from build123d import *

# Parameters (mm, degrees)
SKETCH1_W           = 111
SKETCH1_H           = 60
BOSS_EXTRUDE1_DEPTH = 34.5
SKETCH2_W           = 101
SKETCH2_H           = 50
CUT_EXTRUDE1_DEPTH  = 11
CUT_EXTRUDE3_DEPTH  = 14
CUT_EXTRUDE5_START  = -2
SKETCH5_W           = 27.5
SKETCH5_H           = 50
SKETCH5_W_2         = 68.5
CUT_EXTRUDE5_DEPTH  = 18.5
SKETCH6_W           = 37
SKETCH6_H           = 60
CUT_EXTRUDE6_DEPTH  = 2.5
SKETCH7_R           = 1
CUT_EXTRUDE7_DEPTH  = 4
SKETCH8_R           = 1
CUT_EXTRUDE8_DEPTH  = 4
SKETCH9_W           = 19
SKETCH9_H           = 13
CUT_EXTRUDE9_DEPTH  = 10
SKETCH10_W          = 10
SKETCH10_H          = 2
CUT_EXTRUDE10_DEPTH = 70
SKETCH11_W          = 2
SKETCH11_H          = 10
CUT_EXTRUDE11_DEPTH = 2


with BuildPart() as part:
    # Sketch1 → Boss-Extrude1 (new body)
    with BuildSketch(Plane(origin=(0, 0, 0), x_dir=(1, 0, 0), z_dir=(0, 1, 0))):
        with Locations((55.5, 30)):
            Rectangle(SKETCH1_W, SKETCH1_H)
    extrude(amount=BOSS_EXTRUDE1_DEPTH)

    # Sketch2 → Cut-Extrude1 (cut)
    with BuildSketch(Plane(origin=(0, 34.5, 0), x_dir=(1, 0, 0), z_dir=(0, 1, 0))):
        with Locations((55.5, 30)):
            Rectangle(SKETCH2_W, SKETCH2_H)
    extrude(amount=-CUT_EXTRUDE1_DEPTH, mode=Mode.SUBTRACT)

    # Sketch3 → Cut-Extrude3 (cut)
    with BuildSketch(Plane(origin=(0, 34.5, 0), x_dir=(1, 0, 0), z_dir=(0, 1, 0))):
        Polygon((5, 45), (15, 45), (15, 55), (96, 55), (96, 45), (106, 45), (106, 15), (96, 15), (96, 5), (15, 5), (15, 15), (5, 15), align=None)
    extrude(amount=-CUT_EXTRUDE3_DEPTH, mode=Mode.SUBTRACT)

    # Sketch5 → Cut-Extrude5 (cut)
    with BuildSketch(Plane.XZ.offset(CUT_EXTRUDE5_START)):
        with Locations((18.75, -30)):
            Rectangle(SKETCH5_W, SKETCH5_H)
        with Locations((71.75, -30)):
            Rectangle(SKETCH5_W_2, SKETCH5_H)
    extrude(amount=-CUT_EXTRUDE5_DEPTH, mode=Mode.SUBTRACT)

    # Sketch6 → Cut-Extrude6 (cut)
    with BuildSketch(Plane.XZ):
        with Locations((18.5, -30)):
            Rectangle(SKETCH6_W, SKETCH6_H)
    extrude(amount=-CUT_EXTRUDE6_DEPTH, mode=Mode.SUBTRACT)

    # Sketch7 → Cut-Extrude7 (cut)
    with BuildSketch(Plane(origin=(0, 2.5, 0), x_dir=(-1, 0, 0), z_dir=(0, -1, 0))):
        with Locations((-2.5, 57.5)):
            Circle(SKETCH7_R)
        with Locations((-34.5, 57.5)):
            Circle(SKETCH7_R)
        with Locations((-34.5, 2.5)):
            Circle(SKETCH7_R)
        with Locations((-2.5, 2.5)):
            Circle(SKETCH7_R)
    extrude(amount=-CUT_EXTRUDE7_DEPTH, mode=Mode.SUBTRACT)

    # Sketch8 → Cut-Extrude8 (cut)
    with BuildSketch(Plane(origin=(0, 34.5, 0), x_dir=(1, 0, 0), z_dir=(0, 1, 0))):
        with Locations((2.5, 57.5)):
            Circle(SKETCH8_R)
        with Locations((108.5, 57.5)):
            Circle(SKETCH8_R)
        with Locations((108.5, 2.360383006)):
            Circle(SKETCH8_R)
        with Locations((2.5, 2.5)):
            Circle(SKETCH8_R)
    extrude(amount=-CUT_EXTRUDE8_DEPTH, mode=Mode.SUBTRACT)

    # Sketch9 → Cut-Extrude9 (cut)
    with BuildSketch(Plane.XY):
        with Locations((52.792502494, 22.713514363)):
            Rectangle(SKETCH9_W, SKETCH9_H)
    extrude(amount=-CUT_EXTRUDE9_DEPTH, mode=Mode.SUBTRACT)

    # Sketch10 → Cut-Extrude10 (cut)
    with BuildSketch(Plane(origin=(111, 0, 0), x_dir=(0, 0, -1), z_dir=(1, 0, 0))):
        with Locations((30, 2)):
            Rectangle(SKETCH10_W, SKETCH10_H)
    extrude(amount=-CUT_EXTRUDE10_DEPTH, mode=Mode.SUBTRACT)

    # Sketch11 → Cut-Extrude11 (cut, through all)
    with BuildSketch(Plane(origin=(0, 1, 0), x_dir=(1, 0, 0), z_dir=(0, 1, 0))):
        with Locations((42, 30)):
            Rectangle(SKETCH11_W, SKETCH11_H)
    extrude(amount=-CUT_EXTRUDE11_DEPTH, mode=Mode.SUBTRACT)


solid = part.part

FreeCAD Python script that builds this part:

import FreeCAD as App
import Part
import Sketcher
from FreeCAD import Vector

doc = App.newDocument("Part")
body = doc.addObject("PartDesign::Body", "Body")

sketch1 = body.newObject("Sketcher::SketchObject", "Sketch")
sketch1.AttachmentSupport = (doc.getObject("XZ_Plane"), [""])
sketch1.MapMode = "FlatFace"
sketch1.addGeometry([
    Part.LineSegment(Vector(0, -60, 0), Vector(0, 0, 0)),
    Part.LineSegment(Vector(0, 0, 0), Vector(111, 0, 0)),
    Part.LineSegment(Vector(111, 0, 0), Vector(111, -60, 0)),
    Part.LineSegment(Vector(111, -60, 0), Vector(0, -60, 0)),
], False)
sketch1.addConstraint([
    Sketcher.Constraint("Coincident", 0, 2, 1, 1),
    Sketcher.Constraint("Coincident", 1, 2, 2, 1),
    Sketcher.Constraint("Coincident", 2, 2, 3, 1),
    Sketcher.Constraint("Coincident", 3, 2, 0, 1),
    Sketcher.Constraint("Vertical", 0),
    Sketcher.Constraint("Horizontal", 1),
    Sketcher.Constraint("Vertical", 2),
    Sketcher.Constraint("Horizontal", 3),
    Sketcher.Constraint("Coincident", 0, 2, -1, 1),
    Sketcher.Constraint("DistanceX", 1, 1, 1, 2, 111.0),
    Sketcher.Constraint("DistanceY", 0, 1, 0, 2, 60.0),
])
pad1 = body.newObject("PartDesign::Pad", "Pad")
pad1.Profile = sketch1
pad1.Length = 34.5
pad1.Reversed = True

sketch2 = body.newObject("Sketcher::SketchObject", "Sketch001")
sketch2.AttachmentSupport = (doc.getObject("XZ_Plane"), [""])
sketch2.MapMode = "FlatFace"
sketch2.AttachmentOffset = App.Placement(Vector(0, 0, -34.5), App.Rotation())
sketch2.addGeometry([
    Part.LineSegment(Vector(5, -55, 0), Vector(5, -5, 0)),
    Part.LineSegment(Vector(5, -5, 0), Vector(106, -5, 0)),
    Part.LineSegment(Vector(106, -5, 0), Vector(106, -55, 0)),
    Part.LineSegment(Vector(106, -55, 0), Vector(5, -55, 0)),
], False)
sketch2.addConstraint([
    Sketcher.Constraint("Coincident", 0, 2, 1, 1),
    Sketcher.Constraint("Coincident", 1, 2, 2, 1),
    Sketcher.Constraint("Coincident", 2, 2, 3, 1),
    Sketcher.Constraint("Coincident", 3, 2, 0, 1),
    Sketcher.Constraint("Vertical", 0),
    Sketcher.Constraint("Horizontal", 1),
    Sketcher.Constraint("Vertical", 2),
    Sketcher.Constraint("Horizontal", 3),
    Sketcher.Constraint("DistanceX", 1, 1, 1, 2, 101.0),
    Sketcher.Constraint("DistanceY", 0, 1, 0, 2, 50.0),
    Sketcher.Constraint("DistanceX", -1, 1, 0, 2, 5.0),
    Sketcher.Constraint("DistanceY", 0, 2, -1, 1, 5.0),
])
pocket1 = body.newObject("PartDesign::Pocket", "Pocket")
pocket1.Profile = sketch2
pocket1.Length = 11
pocket1.Reversed = True

sketch3 = body.newObject("Sketcher::SketchObject", "Sketch002")
sketch3.AttachmentSupport = (doc.getObject("XZ_Plane"), [""])
sketch3.MapMode = "FlatFace"
sketch3.AttachmentOffset = App.Placement(Vector(0, 0, -34.5), App.Rotation())
sketch3.addGeometry([
    Part.LineSegment(Vector(15, -45, 0), Vector(5, -45, 0)),
    Part.LineSegment(Vector(5, -45, 0), Vector(5, -15, 0)),
    Part.LineSegment(Vector(5, -15, 0), Vector(15, -15, 0)),
    Part.LineSegment(Vector(15, -15, 0), Vector(15, -5, 0)),
    Part.LineSegment(Vector(15, -5, 0), Vector(96, -5, 0)),
    Part.LineSegment(Vector(96, -5, 0), Vector(96, -15, 0)),
    Part.LineSegment(Vector(96, -15, 0), Vector(106, -15, 0)),
    Part.LineSegment(Vector(106, -15, 0), Vector(106, -45, 0)),
    Part.LineSegment(Vector(106, -45, 0), Vector(96, -45, 0)),
    Part.LineSegment(Vector(96, -45, 0), Vector(96, -55, 0)),
    Part.LineSegment(Vector(96, -55, 0), Vector(15, -55, 0)),
    Part.LineSegment(Vector(15, -55, 0), Vector(15, -45, 0)),
], False)
sketch3.addConstraint([
    Sketcher.Constraint("Coincident", 0, 2, 1, 1),
    Sketcher.Constraint("Coincident", 1, 2, 2, 1),
    Sketcher.Constraint("Coincident", 2, 2, 3, 1),
    Sketcher.Constraint("Coincident", 3, 2, 4, 1),
    Sketcher.Constraint("Coincident", 4, 2, 5, 1),
    Sketcher.Constraint("Coincident", 5, 2, 6, 1),
    Sketcher.Constraint("Coincident", 6, 2, 7, 1),
    Sketcher.Constraint("Coincident", 7, 2, 8, 1),
    Sketcher.Constraint("Coincident", 8, 2, 9, 1),
    Sketcher.Constraint("Coincident", 9, 2, 10, 1),
    Sketcher.Constraint("Coincident", 10, 2, 11, 1),
    Sketcher.Constraint("Coincident", 11, 2, 0, 1),
    Sketcher.Constraint("Horizontal", 0),
    Sketcher.Constraint("Vertical", 1),
    Sketcher.Constraint("Horizontal", 2),
    Sketcher.Constraint("Vertical", 3),
    Sketcher.Constraint("Horizontal", 4),
    Sketcher.Constraint("Vertical", 5),
    Sketcher.Constraint("Horizontal", 6),
    Sketcher.Constraint("Vertical", 7),
    Sketcher.Constraint("Horizontal", 8),
    Sketcher.Constraint("Vertical", 9),
    Sketcher.Constraint("Horizontal", 10),
    Sketcher.Constraint("Vertical", 11),
    Sketcher.Constraint("Horizontal", 2, 2, 5, 2),
    Sketcher.Constraint("Horizontal", 0, 2, 7, 2),
    Sketcher.Constraint("Vertical", 5, 2, 8, 2),
    Sketcher.Constraint("Vertical", 3, 2, 10, 2),
    Sketcher.Constraint("Equal", 2, 6),
    Sketcher.Constraint("Equal", 8, 3),
    Sketcher.Constraint("Equal", 5, 9),
    Sketcher.Constraint("DistanceX", 0, 2, 0, 1, 10.0),
    Sketcher.Constraint("DistanceX", 4, 1, 4, 2, 81.0),
    Sketcher.Constraint("DistanceY", 1, 1, 1, 2, 30.0),
    Sketcher.Constraint("DistanceX", -1, 1, 0, 2, 5.0),
    Sketcher.Constraint("DistanceY", 0, 2, -1, 1, 45.0),
])
pocket2 = body.newObject("PartDesign::Pocket", "Pocket001")
pocket2.Profile = sketch3
pocket2.Length = 14
pocket2.Reversed = True

sketch4 = body.newObject("Sketcher::SketchObject", "Sketch003")
sketch4.AttachmentSupport = (doc.getObject("XZ_Plane"), [""])
sketch4.MapMode = "FlatFace"
sketch4.AttachmentOffset = App.Placement(Vector(0, 0, -2), App.Rotation())
sketch4.addGeometry([
    Part.LineSegment(Vector(5, -5, 0), Vector(5, -55, 0)),
    Part.LineSegment(Vector(5, -55, 0), Vector(32, -55, 0)),
    Part.LineSegment(Vector(32, -55, 0), Vector(32, -5, 0)),
    Part.LineSegment(Vector(32, -5, 0), Vector(5, -5, 0)),
    Part.LineSegment(Vector(38, -5, 0), Vector(38, -55, 0)),
    Part.LineSegment(Vector(38, -55, 0), Vector(106, -55, 0)),
    Part.LineSegment(Vector(106, -55, 0), Vector(106, -5, 0)),
    Part.LineSegment(Vector(106, -5, 0), Vector(38, -5, 0)),
], False)
sketch4.addConstraint([
    Sketcher.Constraint("Coincident", 0, 2, 1, 1),
    Sketcher.Constraint("Coincident", 1, 2, 2, 1),
    Sketcher.Constraint("Coincident", 2, 2, 3, 1),
    Sketcher.Constraint("Coincident", 3, 2, 0, 1),
    Sketcher.Constraint("Coincident", 4, 2, 5, 1),
    Sketcher.Constraint("Coincident", 5, 2, 6, 1),
    Sketcher.Constraint("Coincident", 6, 2, 7, 1),
    Sketcher.Constraint("Coincident", 7, 2, 4, 1),
    Sketcher.Constraint("Vertical", 0),
    Sketcher.Constraint("Horizontal", 1),
    Sketcher.Constraint("Vertical", 2),
    Sketcher.Constraint("Horizontal", 3),
    Sketcher.Constraint("Vertical", 4),
    Sketcher.Constraint("Horizontal", 5),
    Sketcher.Constraint("Vertical", 6),
    Sketcher.Constraint("Horizontal", 7),
    Sketcher.Constraint("Horizontal", 1, 2, 4, 2),
    Sketcher.Constraint("Horizontal", 3, 2, 6, 2),
    Sketcher.Constraint("DistanceY", 0, 2, 0, 1, 50.0),
    Sketcher.Constraint("DistanceX", 1, 1, 1, 2, 27.5),
    Sketcher.Constraint("DistanceX", 5, 1, 5, 2, 68.5),
    Sketcher.Constraint("DistanceX", -1, 1, 0, 2, 5.0),
    Sketcher.Constraint("DistanceY", 0, 2, -1, 1, 55.0),
    Sketcher.Constraint("DistanceX", -1, 1, 5, 2, 106.0),
])
pocket3 = body.newObject("PartDesign::Pocket", "Pocket002")
pocket3.Profile = sketch4
pocket3.Length = 18.5

sketch5 = body.newObject("Sketcher::SketchObject", "Sketch004")
sketch5.AttachmentSupport = (doc.getObject("XZ_Plane"), [""])
sketch5.MapMode = "FlatFace"
sketch5.addGeometry([
    Part.LineSegment(Vector(0, 0, 0), Vector(0, -60, 0)),
    Part.LineSegment(Vector(0, -60, 0), Vector(37, -60, 0)),
    Part.LineSegment(Vector(37, -60, 0), Vector(37, 0, 0)),
    Part.LineSegment(Vector(37, 0, 0), Vector(0, 0, 0)),
], False)
sketch5.addConstraint([
    Sketcher.Constraint("Coincident", 0, 2, 1, 1),
    Sketcher.Constraint("Coincident", 1, 2, 2, 1),
    Sketcher.Constraint("Coincident", 2, 2, 3, 1),
    Sketcher.Constraint("Coincident", 3, 2, 0, 1),
    Sketcher.Constraint("Vertical", 0),
    Sketcher.Constraint("Horizontal", 1),
    Sketcher.Constraint("Vertical", 2),
    Sketcher.Constraint("Horizontal", 3),
    Sketcher.Constraint("Coincident", 3, 2, -1, 1),
    Sketcher.Constraint("DistanceX", 1, 1, 1, 2, 37.0),
    Sketcher.Constraint("DistanceY", 0, 2, 0, 1, 60.0),
])
pocket4 = body.newObject("PartDesign::Pocket", "Pocket003")
pocket4.Profile = sketch5
pocket4.Length = 2.5

sketch6 = body.newObject("Sketcher::SketchObject", "Sketch005")
sketch6.AttachmentSupport = (doc.getObject("XZ_Plane"), [""])
sketch6.MapMode = "FlatFace"
sketch6.AttachmentOffset = App.Placement(Vector(0, 0, -2.5), App.Rotation())
sketch6.addGeometry([
    Part.Circle(Vector(2.5, -57.5, 0), Vector(0, 0, 1), 1),
    Part.Circle(Vector(34.5, -57.5, 0), Vector(0, 0, 1), 1),
    Part.Circle(Vector(34.5, -2.5, 0), Vector(0, 0, 1), 1),
    Part.Circle(Vector(2.5, -2.5, 0), Vector(0, 0, 1), 1),
], False)
sketch6.addConstraint([
    Sketcher.Constraint("Equal", 0, 1),
    Sketcher.Constraint("Equal", 1, 2),
    Sketcher.Constraint("Equal", 2, 3),
    Sketcher.Constraint("Horizontal", 0, 3, 1, 3),
    Sketcher.Constraint("Horizontal", 2, 3, 3, 3),
    Sketcher.Constraint("Vertical", 1, 3, 2, 3),
    Sketcher.Constraint("Vertical", 0, 3, 3, 3),
    Sketcher.Constraint("Diameter", 0, 2.0),
    Sketcher.Constraint("DistanceX", 0, 3, 1, 3, 32.0),
    Sketcher.Constraint("DistanceY", 1, 3, 2, 3, 55.0),
    Sketcher.Constraint("DistanceX", -1, 1, 0, 3, 2.5),
    Sketcher.Constraint("DistanceY", 0, 3, -1, 1, 57.5),
])
pocket5 = body.newObject("PartDesign::Pocket", "Pocket004")
pocket5.Profile = sketch6
pocket5.Length = 4

sketch7 = body.newObject("Sketcher::SketchObject", "Sketch006")
sketch7.AttachmentSupport = (doc.getObject("XZ_Plane"), [""])
sketch7.MapMode = "FlatFace"
sketch7.AttachmentOffset = App.Placement(Vector(0, 0, -34.5), App.Rotation())
sketch7.addGeometry([
    Part.Circle(Vector(2.5, -57.5, 0), Vector(0, 0, 1), 1),
    Part.Circle(Vector(108.5, -57.5, 0), Vector(0, 0, 1), 1),
    Part.Circle(Vector(108.5, -2.4, 0), Vector(0, 0, 1), 1),
    Part.Circle(Vector(2.5, -2.5, 0), Vector(0, 0, 1), 1),
], False)
sketch7.addConstraint([
    Sketcher.Constraint("Equal", 0, 1),
    Sketcher.Constraint("Equal", 1, 2),
    Sketcher.Constraint("Equal", 2, 3),
    Sketcher.Constraint("Horizontal", 0, 3, 1, 3),
    Sketcher.Constraint("Vertical", 1, 3, 2, 3),
    Sketcher.Constraint("Vertical", 0, 3, 3, 3),
    Sketcher.Constraint("Diameter", 0, 2.0),
    Sketcher.Constraint("DistanceX", 0, 3, 1, 3, 106.0),
    Sketcher.Constraint("DistanceY", 0, 3, 3, 3, 55.0),
    Sketcher.Constraint("DistanceX", -1, 1, 0, 3, 2.5),
    Sketcher.Constraint("DistanceY", 0, 3, -1, 1, 57.5),
    Sketcher.Constraint("DistanceY", 2, 3, -1, 1, 2.360383),
])
pocket6 = body.newObject("PartDesign::Pocket", "Pocket005")
pocket6.Profile = sketch7
pocket6.Length = 4
pocket6.Reversed = True

sketch8 = body.newObject("Sketcher::SketchObject", "Sketch007")
sketch8.AttachmentSupport = (doc.getObject("XY_Plane"), [""])
sketch8.MapMode = "FlatFace"
sketch8.addGeometry([
    Part.LineSegment(Vector(43, 29, 0), Vector(43, 16, 0)),
    Part.LineSegment(Vector(43, 16, 0), Vector(62, 16, 0)),
    Part.LineSegment(Vector(62, 16, 0), Vector(62, 29, 0)),
    Part.LineSegment(Vector(62, 29, 0), Vector(43, 29, 0)),
], False)
sketch8.addConstraint([
    Sketcher.Constraint("Coincident", 0, 2, 1, 1),
    Sketcher.Constraint("Coincident", 1, 2, 2, 1),
    Sketcher.Constraint("Coincident", 2, 2, 3, 1),
    Sketcher.Constraint("Coincident", 3, 2, 0, 1),
    Sketcher.Constraint("Vertical", 0),
    Sketcher.Constraint("Horizontal", 1),
    Sketcher.Constraint("Vertical", 2),
    Sketcher.Constraint("Horizontal", 3),
    Sketcher.Constraint("DistanceX", 1, 1, 1, 2, 19.0),
    Sketcher.Constraint("DistanceY", 0, 2, 0, 1, 13.0),
    Sketcher.Constraint("DistanceX", -1, 1, 0, 2, 43.292502),
    Sketcher.Constraint("DistanceY", -1, 1, 0, 2, 16.213514),
])
pocket7 = body.newObject("PartDesign::Pocket", "Pocket006")
pocket7.Profile = sketch8
pocket7.Length = 10

sketch9 = body.newObject("Sketcher::SketchObject", "Sketch008")
sketch9.AttachmentSupport = (doc.getObject("YZ_Plane"), [""])
sketch9.MapMode = "FlatFace"
sketch9.AttachmentOffset = App.Placement(Vector(0, 0, 111), App.Rotation())
sketch9.addGeometry([
    Part.LineSegment(Vector(3, -25, 0), Vector(1, -25, 0)),
    Part.LineSegment(Vector(1, -25, 0), Vector(1, -35, 0)),
    Part.LineSegment(Vector(1, -35, 0), Vector(3, -35, 0)),
    Part.LineSegment(Vector(3, -35, 0), Vector(3, -25, 0)),
], False)
sketch9.addConstraint([
    Sketcher.Constraint("Coincident", 0, 2, 1, 1),
    Sketcher.Constraint("Coincident", 1, 2, 2, 1),
    Sketcher.Constraint("Coincident", 2, 2, 3, 1),
    Sketcher.Constraint("Coincident", 3, 2, 0, 1),
    Sketcher.Constraint("Horizontal", 0),
    Sketcher.Constraint("Vertical", 1),
    Sketcher.Constraint("Horizontal", 2),
    Sketcher.Constraint("Vertical", 3),
    Sketcher.Constraint("DistanceX", 0, 2, 0, 1, 2.0),
    Sketcher.Constraint("DistanceY", 1, 2, 1, 1, 10.0),
    Sketcher.Constraint("DistanceX", -1, 1, 0, 2, 1.0),
    Sketcher.Constraint("DistanceY", 0, 2, -1, 1, 25.0),
])
pocket8 = body.newObject("PartDesign::Pocket", "Pocket007")
pocket8.Profile = sketch9
pocket8.Length = 70

sketch10 = body.newObject("Sketcher::SketchObject", "Sketch009")
sketch10.AttachmentSupport = (doc.getObject("XZ_Plane"), [""])
sketch10.MapMode = "FlatFace"
sketch10.AttachmentOffset = App.Placement(Vector(0, 0, -1), App.Rotation())
sketch10.addGeometry([
    Part.LineSegment(Vector(41, -35, 0), Vector(41, -25, 0)),
    Part.LineSegment(Vector(41, -25, 0), Vector(43, -25, 0)),
    Part.LineSegment(Vector(43, -25, 0), Vector(43, -35, 0)),
    Part.LineSegment(Vector(43, -35, 0), Vector(41, -35, 0)),
], False)
sketch10.addConstraint([
    Sketcher.Constraint("Coincident", 0, 2, 1, 1),
    Sketcher.Constraint("Coincident", 1, 2, 2, 1),
    Sketcher.Constraint("Coincident", 2, 2, 3, 1),
    Sketcher.Constraint("Coincident", 3, 2, 0, 1),
    Sketcher.Constraint("Vertical", 0),
    Sketcher.Constraint("Horizontal", 1),
    Sketcher.Constraint("Vertical", 2),
    Sketcher.Constraint("Horizontal", 3),
    Sketcher.Constraint("DistanceX", 1, 1, 1, 2, 2.0),
    Sketcher.Constraint("DistanceY", 0, 1, 0, 2, 10.0),
    Sketcher.Constraint("DistanceX", -1, 1, 0, 2, 41.0),
    Sketcher.Constraint("DistanceY", 0, 2, -1, 1, 25.0),
])
pocket9 = body.newObject("PartDesign::Pocket", "Pocket008")
pocket9.Profile = sketch10
pocket9.Type = "ThroughAll"
pocket9.Reversed = True

doc.recompute()
